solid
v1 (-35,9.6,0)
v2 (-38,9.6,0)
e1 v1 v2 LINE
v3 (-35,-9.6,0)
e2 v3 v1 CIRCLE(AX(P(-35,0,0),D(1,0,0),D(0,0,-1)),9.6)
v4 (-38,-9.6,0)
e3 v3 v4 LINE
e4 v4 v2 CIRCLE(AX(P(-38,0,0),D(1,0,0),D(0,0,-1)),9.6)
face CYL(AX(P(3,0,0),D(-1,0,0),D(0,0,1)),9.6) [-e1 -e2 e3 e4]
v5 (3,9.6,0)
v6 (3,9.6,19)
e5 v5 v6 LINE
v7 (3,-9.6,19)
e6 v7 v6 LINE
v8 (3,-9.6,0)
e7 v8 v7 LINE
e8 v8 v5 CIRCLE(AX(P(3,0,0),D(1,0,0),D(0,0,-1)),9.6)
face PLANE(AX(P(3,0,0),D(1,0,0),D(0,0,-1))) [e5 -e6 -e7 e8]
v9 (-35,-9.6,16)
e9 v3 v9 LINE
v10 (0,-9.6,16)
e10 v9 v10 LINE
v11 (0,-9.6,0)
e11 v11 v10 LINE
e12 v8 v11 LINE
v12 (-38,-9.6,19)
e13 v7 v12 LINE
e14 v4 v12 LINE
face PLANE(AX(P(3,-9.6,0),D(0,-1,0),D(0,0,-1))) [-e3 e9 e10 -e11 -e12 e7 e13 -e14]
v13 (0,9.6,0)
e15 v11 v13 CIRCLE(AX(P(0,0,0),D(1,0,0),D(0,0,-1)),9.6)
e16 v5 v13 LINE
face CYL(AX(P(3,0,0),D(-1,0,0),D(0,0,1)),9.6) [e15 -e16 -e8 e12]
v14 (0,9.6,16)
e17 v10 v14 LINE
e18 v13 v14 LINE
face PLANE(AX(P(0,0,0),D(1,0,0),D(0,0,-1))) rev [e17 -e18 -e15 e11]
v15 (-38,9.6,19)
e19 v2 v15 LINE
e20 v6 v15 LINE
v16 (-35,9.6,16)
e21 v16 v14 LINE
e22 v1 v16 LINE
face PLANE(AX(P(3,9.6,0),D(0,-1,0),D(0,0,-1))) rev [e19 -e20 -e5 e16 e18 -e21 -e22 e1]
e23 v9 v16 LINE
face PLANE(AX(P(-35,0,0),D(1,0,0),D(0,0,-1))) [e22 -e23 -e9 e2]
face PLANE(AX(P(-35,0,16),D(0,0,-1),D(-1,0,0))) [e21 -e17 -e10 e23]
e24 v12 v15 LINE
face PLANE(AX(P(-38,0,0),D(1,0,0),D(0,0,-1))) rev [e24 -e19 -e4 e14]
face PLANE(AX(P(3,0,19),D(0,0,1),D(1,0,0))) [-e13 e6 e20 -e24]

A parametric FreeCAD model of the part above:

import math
import FreeCAD as App
import Part
import Sketcher

V = App.Vector


def add_polygon(sketch, points):
    """Adds a closed chain of lines whose ends are joined by coincident constraints."""
    first, n = sketch.GeometryCount, len(points)
    for a, b in zip(points, points[1:] + points[:1]):
        sketch.addGeometry(Part.LineSegment(App.Vector(*a, 0), App.Vector(*b, 0)), False)
    for i in range(n):
        sketch.addConstraint(Sketcher.Constraint("Coincident", first + i, 2, first + (i + 1) % n, 1))

doc = App.newDocument("Part")
body = doc.addObject("PartDesign::Body", "Body")

sketch1 = body.newObject("Sketcher::SketchObject", "Sketch")
sketch1.AttachmentSupport = (doc.getObject("YZ_Plane"), [""])
sketch1.MapMode = "FlatFace"
sketch1.addGeometry([
    Part.LineSegment(V(10, 0, 0), V(10, 19, 0)),
    Part.LineSegment(V(10, 19, 0), V(-10, 19, 0)),
    Part.LineSegment(V(-10, 19, 0), V(-10, 0, 0)),
    Part.ArcOfCircle(Part.Circle(V(0, 0, 0), V(0, 0, 1), 10), math.radians(180), math.radians(360)),
], False)
sketch1.addConstraint([
    Sketcher.Constraint("Coincident", 0, 2, 1, 1),
    Sketcher.Constraint("Coincident", 1, 2, 2, 1),
    Sketcher.Constraint("Tangent", 2, 2, 3, 1),
    Sketcher.Constraint("Tangent", 3, 2, 0, 1),
    Sketcher.Constraint("Vertical", 0),
    Sketcher.Constraint("Horizontal", 1),
    Sketcher.Constraint("Vertical", 2),
    Sketcher.Constraint("Coincident", 3, 3, -1, 1),
    Sketcher.Constraint("Radius", 3, 9.6),
    Sketcher.Constraint("DistanceY", 0, 1, 0, 2, 19.0),
])
pad1 = body.newObject("PartDesign::Pad", "Pad")
pad1.Profile = sketch1
pad1.Length = 3

sketch2 = body.newObject("Sketcher::SketchObject", "Sketch001")
sketch2.AttachmentSupport = (doc.getObject("YZ_Plane"), [""])
sketch2.MapMode = "FlatFace"
add_polygon(sketch2, [(9.6, 19), (-9.6, 19), (-9.6, 16), (9.6, 16)])
sketch2.addConstraint([
    Sketcher.Constraint("Horizontal", 0),
    Sketcher.Constraint("Vertical", 1),
    Sketcher.Constraint("Horizontal", 2),
    Sketcher.Constraint("Vertical", 3),
    Sketcher.Constraint("DistanceY", 1, 2, 1, 1, 3.0),
    Sketcher.Constraint("DistanceX", 0, 2, 0, 1, 19.2),
    Sketcher.Constraint("DistanceY", -1, 1, 0, 2, 19.0),
    Sketcher.Constraint("DistanceX", 0, 2, -1, 1, 9.6),
])
pad2 = body.newObject("PartDesign::Pad", "Pad001")
pad2.Profile = sketch2
pad2.Length = 38
pad2.Reversed = True

sketch3 = body.newObject("Sketcher::SketchObject", "Sketch002")
sketch3.AttachmentSupport = (doc.getObject("YZ_Plane"), [""])
sketch3.MapMode = "FlatFace"
sketch3.AttachmentOffset = App.Placement(V(0, 0, -38), App.Rotation())
sketch3.addGeometry([
    Part.LineSegment(V(-10, 16, 0), V(-10, 0, 0)),
    Part.ArcOfCircle(Part.Circle(V(0, 0, 0), V(0, 0, 1), 10), math.radians(180), math.radians(360)),
    Part.LineSegment(V(10, 0, 0), V(10, 16, 0)),
    Part.LineSegment(V(10, 16, 0), V(-10, 16, 0)),
], False)
sketch3.addConstraint([
    Sketcher.Constraint("Tangent", 0, 2, 1, 1),
    Sketcher.Constraint("Tangent", 1, 2, 2, 1),
    Sketcher.Constraint("Coincident", 2, 2, 3, 1),
    Sketcher.Constraint("Coincident", 3, 2, 0, 1),
    Sketcher.Constraint("Vertical", 0),
    Sketcher.Constraint("Vertical", 2),
    Sketcher.Constraint("Horizontal", 3),
    Sketcher.Constraint("Coincident", 1, 3, -1, 1),
    Sketcher.Constraint("Radius", 1, 9.6),
    Sketcher.Constraint("DistanceY", 0, 2, 0, 1, 16.0),
])
pad3 = body.newObject("PartDesign::Pad", "Pad002")
pad3.Profile = sketch3
pad3.Length = 38

sketch4 = body.newObject("Sketcher::SketchObject", "Sketch003")
sketch4.AttachmentSupport = (doc.getObject("YZ_Plane"), [""])
sketch4.MapMode = "FlatFace"
sketch4.AttachmentOffset = App.Placement(V(0, 0, -35), App.Rotation())
sketch4.addGeometry([
    Part.LineSegment(V(10, 0, 0), V(10, 16, 0)),
    Part.LineSegment(V(10, 16, 0), V(-10, 16, 0)),
    Part.LineSegment(V(-10, 16, 0), V(-10, 0, 0)),
    Part.ArcOfCircle(Part.Circle(V(0, 0, 0), V(0, 0, 1), 10), math.radians(180), math.radians(360)),
], False)
sketch4.addConstraint([
    Sketcher.Constraint("Coincident", 0, 2, 1, 1),
    Sketcher.Constraint("Coincident", 1, 2, 2, 1),
    Sketcher.Constraint("Tangent", 2, 2, 3, 1),
    Sketcher.Constraint("Tangent", 3, 2, 0, 1),
    Sketcher.Constraint("Vertical", 0),
    Sketcher.Constraint("Horizontal", 1),
    Sketcher.Constraint("Vertical", 2),
    Sketcher.Constraint("Coincident", 3, 3, -1, 1),
    Sketcher.Constraint("Radius", 3, 9.6),
    Sketcher.Constraint("DistanceY", 0, 1, 0, 2, 16.0),
])
pocket1 = body.newObject("PartDesign::Pocket", "Pocket")
pocket1.Profile = sketch4
pocket1.Length = 35
pocket1.Reversed = True

doc.recompute()
